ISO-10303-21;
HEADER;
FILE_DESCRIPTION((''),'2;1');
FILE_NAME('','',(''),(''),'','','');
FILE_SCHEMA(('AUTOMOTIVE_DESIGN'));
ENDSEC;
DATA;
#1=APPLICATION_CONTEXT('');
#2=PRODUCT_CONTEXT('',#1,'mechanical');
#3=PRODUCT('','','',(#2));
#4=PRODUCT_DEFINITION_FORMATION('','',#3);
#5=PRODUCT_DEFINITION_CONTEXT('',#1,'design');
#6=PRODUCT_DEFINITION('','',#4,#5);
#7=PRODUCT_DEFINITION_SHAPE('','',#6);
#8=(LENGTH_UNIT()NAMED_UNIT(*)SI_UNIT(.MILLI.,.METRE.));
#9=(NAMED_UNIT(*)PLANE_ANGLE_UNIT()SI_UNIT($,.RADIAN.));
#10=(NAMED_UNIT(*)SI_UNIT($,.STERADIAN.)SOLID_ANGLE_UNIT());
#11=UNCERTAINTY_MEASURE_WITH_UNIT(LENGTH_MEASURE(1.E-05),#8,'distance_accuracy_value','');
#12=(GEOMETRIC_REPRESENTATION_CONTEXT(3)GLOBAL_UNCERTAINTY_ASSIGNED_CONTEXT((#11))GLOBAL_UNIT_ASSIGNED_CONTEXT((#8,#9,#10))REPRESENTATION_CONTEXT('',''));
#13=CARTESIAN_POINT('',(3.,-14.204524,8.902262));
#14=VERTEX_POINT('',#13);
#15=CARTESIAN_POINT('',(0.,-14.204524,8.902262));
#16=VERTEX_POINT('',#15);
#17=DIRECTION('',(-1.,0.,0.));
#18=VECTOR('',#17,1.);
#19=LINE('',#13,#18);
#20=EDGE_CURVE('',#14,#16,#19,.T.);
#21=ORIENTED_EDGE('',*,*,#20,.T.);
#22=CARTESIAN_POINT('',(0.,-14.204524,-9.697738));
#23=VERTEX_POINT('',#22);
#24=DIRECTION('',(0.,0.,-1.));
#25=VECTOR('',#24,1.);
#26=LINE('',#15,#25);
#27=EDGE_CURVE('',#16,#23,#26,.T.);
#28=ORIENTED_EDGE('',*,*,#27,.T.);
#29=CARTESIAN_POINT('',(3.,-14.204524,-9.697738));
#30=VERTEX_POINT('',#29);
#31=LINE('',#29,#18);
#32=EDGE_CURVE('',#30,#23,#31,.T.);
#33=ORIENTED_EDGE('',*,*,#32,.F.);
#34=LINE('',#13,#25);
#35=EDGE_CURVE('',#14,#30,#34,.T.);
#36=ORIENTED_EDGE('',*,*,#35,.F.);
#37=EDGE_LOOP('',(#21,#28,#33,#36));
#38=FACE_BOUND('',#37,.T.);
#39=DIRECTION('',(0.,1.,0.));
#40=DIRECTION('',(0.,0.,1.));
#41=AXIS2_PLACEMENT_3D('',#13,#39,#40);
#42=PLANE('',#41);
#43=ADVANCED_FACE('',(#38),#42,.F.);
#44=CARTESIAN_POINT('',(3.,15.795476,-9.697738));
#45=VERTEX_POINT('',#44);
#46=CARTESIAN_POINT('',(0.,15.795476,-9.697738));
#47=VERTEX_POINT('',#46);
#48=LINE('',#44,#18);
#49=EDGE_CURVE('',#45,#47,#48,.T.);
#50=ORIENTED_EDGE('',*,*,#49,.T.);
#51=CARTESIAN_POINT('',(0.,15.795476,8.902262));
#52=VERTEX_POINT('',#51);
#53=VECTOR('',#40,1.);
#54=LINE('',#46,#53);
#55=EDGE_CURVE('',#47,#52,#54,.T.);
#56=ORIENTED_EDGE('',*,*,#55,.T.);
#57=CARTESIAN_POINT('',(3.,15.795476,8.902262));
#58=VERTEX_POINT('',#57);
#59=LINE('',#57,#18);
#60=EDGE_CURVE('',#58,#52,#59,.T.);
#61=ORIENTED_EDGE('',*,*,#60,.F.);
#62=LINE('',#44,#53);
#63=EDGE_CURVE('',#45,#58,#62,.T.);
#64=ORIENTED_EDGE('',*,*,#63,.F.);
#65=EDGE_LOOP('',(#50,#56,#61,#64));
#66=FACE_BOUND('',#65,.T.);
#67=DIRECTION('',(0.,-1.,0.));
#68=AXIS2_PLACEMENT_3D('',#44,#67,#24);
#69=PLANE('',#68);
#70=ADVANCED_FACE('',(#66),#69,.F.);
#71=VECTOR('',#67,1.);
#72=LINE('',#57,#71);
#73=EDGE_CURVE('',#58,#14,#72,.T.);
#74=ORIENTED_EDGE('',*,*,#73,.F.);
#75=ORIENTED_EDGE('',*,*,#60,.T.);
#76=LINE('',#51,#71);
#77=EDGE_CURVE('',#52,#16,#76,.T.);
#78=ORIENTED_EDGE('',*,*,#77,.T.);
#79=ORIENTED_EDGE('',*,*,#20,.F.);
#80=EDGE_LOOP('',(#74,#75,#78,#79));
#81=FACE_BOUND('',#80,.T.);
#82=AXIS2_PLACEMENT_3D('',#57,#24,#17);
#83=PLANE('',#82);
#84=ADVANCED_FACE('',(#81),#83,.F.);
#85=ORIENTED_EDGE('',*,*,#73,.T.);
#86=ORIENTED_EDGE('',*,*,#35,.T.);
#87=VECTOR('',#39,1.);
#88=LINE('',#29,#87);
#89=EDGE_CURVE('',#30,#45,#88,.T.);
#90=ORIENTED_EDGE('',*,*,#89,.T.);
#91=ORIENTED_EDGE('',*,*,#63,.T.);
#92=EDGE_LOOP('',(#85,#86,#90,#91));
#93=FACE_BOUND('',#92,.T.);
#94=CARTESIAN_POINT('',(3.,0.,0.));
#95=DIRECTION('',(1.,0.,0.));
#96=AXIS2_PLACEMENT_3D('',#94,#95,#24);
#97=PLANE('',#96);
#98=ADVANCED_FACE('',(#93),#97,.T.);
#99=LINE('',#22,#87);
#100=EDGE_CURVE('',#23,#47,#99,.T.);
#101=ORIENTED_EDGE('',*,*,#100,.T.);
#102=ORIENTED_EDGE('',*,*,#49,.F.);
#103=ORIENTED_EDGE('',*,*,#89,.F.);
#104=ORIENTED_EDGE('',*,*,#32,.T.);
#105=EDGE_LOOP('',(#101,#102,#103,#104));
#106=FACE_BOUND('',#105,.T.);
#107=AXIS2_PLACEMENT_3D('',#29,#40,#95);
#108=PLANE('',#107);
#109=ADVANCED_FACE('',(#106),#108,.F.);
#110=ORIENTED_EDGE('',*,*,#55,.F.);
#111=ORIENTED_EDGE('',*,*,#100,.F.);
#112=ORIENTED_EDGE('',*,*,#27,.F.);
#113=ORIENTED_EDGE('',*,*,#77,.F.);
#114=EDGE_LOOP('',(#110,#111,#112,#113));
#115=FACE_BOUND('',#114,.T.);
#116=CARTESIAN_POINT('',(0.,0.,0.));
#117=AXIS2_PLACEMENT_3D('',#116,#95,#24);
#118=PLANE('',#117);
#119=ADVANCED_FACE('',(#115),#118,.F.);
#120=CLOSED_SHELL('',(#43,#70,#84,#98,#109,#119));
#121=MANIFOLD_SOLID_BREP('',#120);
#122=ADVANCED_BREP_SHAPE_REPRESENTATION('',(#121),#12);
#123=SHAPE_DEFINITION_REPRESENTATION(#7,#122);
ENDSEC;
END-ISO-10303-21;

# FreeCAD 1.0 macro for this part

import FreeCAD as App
import Part
import Sketcher
from FreeCAD import Vector
Q = App.Units.Quantity

doc = App.newDocument("Part")
params = doc.addObject("Spreadsheet::Sheet", "Params")
for row, (alias, value) in enumerate([
    ("sketch1_width", "30 mm"),
    ("sketch1_height", "18.6 mm"),
    ("pad1_length", "3 mm"),
], start=1):
    params.set(f"A{row}", alias)
    params.set(f"B{row}", "=" + value)
    params.setAlias(f"B{row}", alias)

body = doc.addObject("PartDesign::Body", "Body")

sketch1 = doc.addObject("Sketcher::SketchObject", "Sketch")
body.addObject(sketch1)
sketch1.AttachmentSupport = (doc.YZ_Plane, [""])
sketch1.MapMode = "FlatFace"
sketch1.addGeometry([
    Part.LineSegment(Vector(15.795476, 8.902262, 0), Vector(-14.204524, 8.902262, 0)),
    Part.LineSegment(Vector(-14.204524, 8.902262, 0), Vector(-14.204524, -9.697738, 0)),
    Part.LineSegment(Vector(-14.204524, -9.697738, 0), Vector(15.795476, -9.697738, 0)),
    Part.LineSegment(Vector(15.795476, -9.697738, 0), Vector(15.795476, 8.902262, 0)),
], False)
sketch1.addConstraint([
    Sketcher.Constraint("Coincident", 0, 2, 1, 1),
    Sketcher.Constraint("Coincident", 1, 2, 2, 1),
    Sketcher.Constraint("Coincident", 2, 2, 3, 1),
    Sketcher.Constraint("Coincident", 3, 2, 0, 1),
    Sketcher.Constraint("Horizontal", 0),
    Sketcher.Constraint("Vertical", 1),
    Sketcher.Constraint("Horizontal", 2),
    Sketcher.Constraint("Vertical", 3),
    Sketcher.Constraint("DistanceX", 0, 2, 0, 1, Q("30 mm")),
    Sketcher.Constraint("DistanceY", 1, 2, 1, 1, Q("18.6 mm")),
    Sketcher.Constraint("DistanceY", -1, 1, 0, 2, Q("8.902262 mm")),
    Sketcher.Constraint("DistanceX", 0, 2, -1, 1, Q("14.204524 mm")),
])
sketch1.setExpression("Constraints[8]", "Params.sketch1_width")
sketch1.setExpression("Constraints[9]", "Params.sketch1_height")
pad1 = doc.addObject("PartDesign::Pad", "Pad")
body.addObject(pad1)
pad1.Profile = sketch1
pad1.setExpression("Length", "Params.pad1_length")

doc.recompute()
